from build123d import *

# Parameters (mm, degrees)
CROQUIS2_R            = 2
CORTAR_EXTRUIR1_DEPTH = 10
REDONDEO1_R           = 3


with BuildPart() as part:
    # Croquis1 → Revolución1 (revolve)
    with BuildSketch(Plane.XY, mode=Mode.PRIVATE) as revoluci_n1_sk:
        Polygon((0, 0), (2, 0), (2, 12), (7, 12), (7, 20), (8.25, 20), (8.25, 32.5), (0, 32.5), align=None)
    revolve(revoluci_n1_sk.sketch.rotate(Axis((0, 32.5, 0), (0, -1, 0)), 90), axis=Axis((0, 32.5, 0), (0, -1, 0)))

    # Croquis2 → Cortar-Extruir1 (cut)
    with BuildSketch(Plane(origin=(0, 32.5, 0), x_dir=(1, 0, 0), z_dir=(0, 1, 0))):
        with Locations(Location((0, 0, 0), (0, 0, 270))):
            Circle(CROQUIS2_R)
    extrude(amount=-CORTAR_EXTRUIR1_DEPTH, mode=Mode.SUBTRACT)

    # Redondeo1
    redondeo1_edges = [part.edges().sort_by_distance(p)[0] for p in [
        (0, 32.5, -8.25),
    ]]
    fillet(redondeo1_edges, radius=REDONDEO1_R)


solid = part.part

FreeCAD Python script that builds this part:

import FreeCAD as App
import Part
import Sketcher

V = App.Vector
Q = App.Units.Quantity


def edges_at(feature, points):
    """Names of the edges that pass closest to the given points."""
    edges = feature.Shape.Edges
    near = lambda p: min(range(len(edges)), key=lambda i: edges[i].distToShape(Part.Vertex(*p))[0])
    return sorted({f"Edge{near(p) + 1}" for p in points})


def add_polygon(sketch, points):
    """Adds a closed chain of lines whose ends are joined by coincident constraints."""
    first, n = sketch.GeometryCount, len(points)
    for a, b in zip(points, points[1:] + points[:1]):
        sketch.addGeometry(Part.LineSegment(App.Vector(*a, 0), App.Vector(*b, 0)), False)
    for i in range(n):
        sketch.addConstraint(Sketcher.Constraint("Coincident", first + i, 2, first + (i + 1) % n, 1))

doc = App.newDocument("Part")
body = doc.addObject("PartDesign::Body", "Body")

# Sketch on XY plane
sketch1 = body.newObject("Sketcher::SketchObject", "Sketch")
sketch1.AttachmentSupport = (doc.getObject("XY_Plane"), [""])
sketch1.MapMode = "FlatFace"
add_polygon(sketch1, [(0, 0), (2, 0), (2, 12), (7, 12), (7, 20), (8.2, 20), (8.2, 32.5), (0, 32.5)])  # lines 0-7
sketch1.addConstraint([
    Sketcher.Constraint("Horizontal", 0),
    Sketcher.Constraint("Vertical", 1),
    Sketcher.Constraint("Horizontal", 2),
    Sketcher.Constraint("Vertical", 3),
    Sketcher.Constraint("Horizontal", 4),
    Sketcher.Constraint("Vertical", 5),
    Sketcher.Constraint("Horizontal", 6),
    Sketcher.Constraint("Vertical", 7),
    Sketcher.Constraint("Coincident", 7, 2, -1, 1),
    Sketcher.Constraint("DistanceX", 0, 1, 0, 2, Q("2 mm")),
    Sketcher.Constraint("DistanceX", 2, 1, 2, 2, Q("5 mm")),
    Sketcher.Constraint("DistanceY", 1, 1, 1, 2, Q("12 mm")),
    Sketcher.Constraint("DistanceY", 3, 1, 3, 2, Q("8 mm")),
    Sketcher.Constraint("DistanceY", 5, 1, 5, 2, Q("12.5 mm")),
    Sketcher.Constraint("DistanceX", 4, 1, 4, 2, Q("1.25 mm")),
])
revolution = body.newObject("PartDesign::Revolution", "Revolution")
revolution.Profile = sketch1
revolution.ReferenceAxis = (sketch1, ["V_Axis"])
revolution.Angle = 360

# Sketch on XZ plane
sketch2 = body.newObject("Sketcher::SketchObject", "Sketch001")
sketch2.AttachmentSupport = (doc.getObject("XZ_Plane"), [""])
sketch2.MapMode = "FlatFace"
sketch2.AttachmentOffset = App.Placement(V(0, 0, -32.5), App.Rotation())
sketch2.addGeometry(Part.Circle(V(0, 0, 0), V(0, 0, 1), 2), False)
sketch2.addConstraint([
    Sketcher.Constraint("Coincident", 0, 3, -1, 1),
    Sketcher.Constraint("Diameter", 0, Q("4 mm")),
])
pocket1 = body.newObject("PartDesign::Pocket", "Pocket")
pocket1.Profile = sketch2
pocket1.Length = 10
pocket1.Reversed = True
doc.recompute()

fillet = body.newObject("PartDesign::Fillet", "Fillet")
fillet.Base = (pocket1, edges_at(pocket1, [(0, 32.5, -8.25)]))
fillet.Radius = 3

doc.recompute()
